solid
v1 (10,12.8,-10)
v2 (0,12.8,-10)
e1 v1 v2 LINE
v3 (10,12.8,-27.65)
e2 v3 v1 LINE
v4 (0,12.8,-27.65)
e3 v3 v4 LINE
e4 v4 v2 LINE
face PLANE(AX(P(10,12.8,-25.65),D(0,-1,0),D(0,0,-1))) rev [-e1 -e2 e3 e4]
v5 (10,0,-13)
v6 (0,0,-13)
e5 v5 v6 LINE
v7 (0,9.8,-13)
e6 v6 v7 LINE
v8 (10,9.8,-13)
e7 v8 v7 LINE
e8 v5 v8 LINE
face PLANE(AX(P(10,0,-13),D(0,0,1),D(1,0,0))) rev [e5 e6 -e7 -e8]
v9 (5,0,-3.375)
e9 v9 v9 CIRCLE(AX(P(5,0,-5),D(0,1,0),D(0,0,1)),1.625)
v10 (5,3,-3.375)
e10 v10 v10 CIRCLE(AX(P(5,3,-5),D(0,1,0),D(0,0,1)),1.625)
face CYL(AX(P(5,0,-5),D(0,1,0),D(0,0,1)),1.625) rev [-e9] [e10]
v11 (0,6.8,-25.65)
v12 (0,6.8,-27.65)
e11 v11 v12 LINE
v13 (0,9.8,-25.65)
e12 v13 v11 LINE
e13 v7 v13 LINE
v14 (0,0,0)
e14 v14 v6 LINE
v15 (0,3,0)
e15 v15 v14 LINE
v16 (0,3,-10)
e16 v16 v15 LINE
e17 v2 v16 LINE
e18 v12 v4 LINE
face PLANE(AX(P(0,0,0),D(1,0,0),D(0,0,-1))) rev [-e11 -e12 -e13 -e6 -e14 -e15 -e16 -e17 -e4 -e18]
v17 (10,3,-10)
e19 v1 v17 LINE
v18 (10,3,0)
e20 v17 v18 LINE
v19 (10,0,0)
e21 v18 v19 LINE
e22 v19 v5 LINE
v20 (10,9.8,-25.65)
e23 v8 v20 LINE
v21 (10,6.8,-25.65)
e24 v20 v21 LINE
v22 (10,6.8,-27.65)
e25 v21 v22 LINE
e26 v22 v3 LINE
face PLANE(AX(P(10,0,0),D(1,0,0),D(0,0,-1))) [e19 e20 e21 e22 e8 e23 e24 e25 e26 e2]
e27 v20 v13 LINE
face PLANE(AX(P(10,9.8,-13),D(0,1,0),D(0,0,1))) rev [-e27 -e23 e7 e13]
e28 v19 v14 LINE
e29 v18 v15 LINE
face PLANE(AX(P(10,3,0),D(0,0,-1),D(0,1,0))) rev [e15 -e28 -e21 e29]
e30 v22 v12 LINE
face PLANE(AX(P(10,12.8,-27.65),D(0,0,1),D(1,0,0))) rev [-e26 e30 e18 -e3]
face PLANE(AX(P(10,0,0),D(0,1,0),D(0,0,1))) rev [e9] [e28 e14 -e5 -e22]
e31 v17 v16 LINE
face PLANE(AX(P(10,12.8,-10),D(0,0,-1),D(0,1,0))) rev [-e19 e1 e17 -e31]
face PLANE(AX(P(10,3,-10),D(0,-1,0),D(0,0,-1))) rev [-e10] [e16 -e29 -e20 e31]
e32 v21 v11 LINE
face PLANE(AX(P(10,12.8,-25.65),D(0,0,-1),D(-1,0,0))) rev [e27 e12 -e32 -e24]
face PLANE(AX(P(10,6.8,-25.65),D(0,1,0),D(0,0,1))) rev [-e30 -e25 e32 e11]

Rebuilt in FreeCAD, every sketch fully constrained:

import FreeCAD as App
import Part
import Sketcher

doc = App.newDocument("Part")
body = doc.addObject("PartDesign::Body", "Body")

# Sketch on YZ plane
sketch1 = doc.addObject("Sketcher::SketchObject", "Sketch")
body.addObject(sketch1)
sketch1.AttachmentSupport = (doc.YZ_Plane, [""])
sketch1.MapMode = "FlatFace"
sketch1.addGeometry([
    Part.LineSegment(App.Vector(0, 0, 0), App.Vector(0, -13, 0)),  # 0
    Part.LineSegment(App.Vector(0, -13, 0), App.Vector(9.8, -13, 0)),  # 1
    Part.LineSegment(App.Vector(9.8, -13, 0), App.Vector(9.8, -25.65, 0)),  # 2
    Part.LineSegment(App.Vector(9.8, -25.65, 0), App.Vector(12.8, -25.65, 0)),  # 3
    Part.LineSegment(App.Vector(12.8, -25.65, 0), App.Vector(12.8, -10, 0)),  # 4
    Part.LineSegment(App.Vector(12.8, -10, 0), App.Vector(3, -10, 0)),  # 5
    Part.LineSegment(App.Vector(3, -10, 0), App.Vector(3, 0, 0)),  # 6
    Part.LineSegment(App.Vector(3, 0, 0), App.Vector(0, 0, 0)),  # 7
], False)
sketch1.addConstraint([
    Sketcher.Constraint("Coincident", 0, 2, 1, 1),
    Sketcher.Constraint("Coincident", 1, 2, 2, 1),
    Sketcher.Constraint("Coincident", 2, 2, 3, 1),
    Sketcher.Constraint("Coincident", 3, 2, 4, 1),
    Sketcher.Constraint("Coincident", 4, 2, 5, 1),
    Sketcher.Constraint("Coincident", 5, 2, 6, 1),
    Sketcher.Constraint("Coincident", 6, 2, 7, 1),
    Sketcher.Constraint("Coincident", 7, 2, 0, 1),
    Sketcher.Constraint("Vertical", 0),
    Sketcher.Constraint("Horizontal", 1),
    Sketcher.Constraint("Vertical", 2),
    Sketcher.Constraint("Horizontal", 3),
    Sketcher.Constraint("Vertical", 4),
    Sketcher.Constraint("Horizontal", 5),
    Sketcher.Constraint("Vertical", 6),
    Sketcher.Constraint("Horizontal", 7),
    Sketcher.Constraint("Coincident", 7, 2, -1, 1),
    Sketcher.Constraint("Equal", 1, 5),
    Sketcher.Constraint("DistanceX", 3, 1, 3, 2, 3.0),
    Sketcher.Constraint("DistanceY", 0, 2, 0, 1, 13.0),
    Sketcher.Constraint("DistanceY", 6, 1, 6, 2, 10.0),
    Sketcher.Constraint("DistanceX", 1, 1, 1, 2, 9.8),
    Sketcher.Constraint("DistanceY", 2, 2, 2, 1, 12.65),
])
pad1 = doc.addObject("PartDesign::Pad", "Pad")
body.addObject(pad1)
pad1.Profile = sketch1
pad1.Length = 10

# Sketch on YZ plane
sketch2 = doc.addObject("Sketcher::SketchObject", "Sketch001")
body.addObject(sketch2)
sketch2.AttachmentSupport = (doc.YZ_Plane, [""])
sketch2.MapMode = "FlatFace"
sketch2.addGeometry([
    Part.LineSegment(App.Vector(12.8, -25.65, 0), App.Vector(6.8, -25.65, 0)),
    Part.LineSegment(App.Vector(6.8, -25.65, 0), App.Vector(6.8, -27.65, 0)),
    Part.LineSegment(App.Vector(6.8, -27.65, 0), App.Vector(12.8, -27.65, 0)),
    Part.LineSegment(App.Vector(12.8, -27.65, 0), App.Vector(12.8, -25.65, 0)),
], False)
sketch2.addConstraint([
    Sketcher.Constraint("Coincident", 0, 2, 1, 1),
    Sketcher.Constraint("Coincident", 1, 2, 2, 1),
    Sketcher.Constraint("Coincident", 2, 2, 3, 1),
    Sketcher.Constraint("Coincident", 3, 2, 0, 1),
    Sketcher.Constraint("Horizontal", 0),
    Sketcher.Constraint("Vertical", 1),
    Sketcher.Constraint("Horizontal", 2),
    Sketcher.Constraint("Vertical", 3),
    Sketcher.Constraint("DistanceX", 0, 2, 0, 1, 6.0),
    Sketcher.Constraint("DistanceY", 1, 2, 1, 1, 2.0),
    Sketcher.Constraint("DistanceX", -1, 1, 0, 2, 6.8),
    Sketcher.Constraint("DistanceY", 0, 2, -1, 1, 25.65),
])
pad2 = doc.addObject("PartDesign::Pad", "Pad001")
body.addObject(pad2)
pad2.Profile = sketch2
pad2.Length = 10

# Sketch on XZ plane
sketch3 = doc.addObject("Sketcher::SketchObject", "Sketch002")
body.addObject(sketch3)
sketch3.AttachmentSupport = (doc.XZ_Plane, [""])
sketch3.MapMode = "FlatFace"
sketch3.AttachmentOffset = App.Placement(App.Vector(0, 0, -3), App.Rotation())
sketch3.addGeometry(Part.Circle(App.Vector(5, -5, 0), App.Vector(0, 0, 1), 1.625), False)
sketch3.addConstraint([
    Sketcher.Constraint("Diameter", 0, 3.25),
    Sketcher.Constraint("DistanceX", -1, 1, 0, 3, 5.0),
    Sketcher.Constraint("DistanceY", 0, 3, -1, 1, 5.0),
])
pocket1 = doc.addObject("PartDesign::Pocket", "Pocket")
body.addObject(pocket1)
pocket1.Profile = sketch3
pocket1.Type = "ThroughAll"
pocket1.Reversed = True

doc.recompute()
